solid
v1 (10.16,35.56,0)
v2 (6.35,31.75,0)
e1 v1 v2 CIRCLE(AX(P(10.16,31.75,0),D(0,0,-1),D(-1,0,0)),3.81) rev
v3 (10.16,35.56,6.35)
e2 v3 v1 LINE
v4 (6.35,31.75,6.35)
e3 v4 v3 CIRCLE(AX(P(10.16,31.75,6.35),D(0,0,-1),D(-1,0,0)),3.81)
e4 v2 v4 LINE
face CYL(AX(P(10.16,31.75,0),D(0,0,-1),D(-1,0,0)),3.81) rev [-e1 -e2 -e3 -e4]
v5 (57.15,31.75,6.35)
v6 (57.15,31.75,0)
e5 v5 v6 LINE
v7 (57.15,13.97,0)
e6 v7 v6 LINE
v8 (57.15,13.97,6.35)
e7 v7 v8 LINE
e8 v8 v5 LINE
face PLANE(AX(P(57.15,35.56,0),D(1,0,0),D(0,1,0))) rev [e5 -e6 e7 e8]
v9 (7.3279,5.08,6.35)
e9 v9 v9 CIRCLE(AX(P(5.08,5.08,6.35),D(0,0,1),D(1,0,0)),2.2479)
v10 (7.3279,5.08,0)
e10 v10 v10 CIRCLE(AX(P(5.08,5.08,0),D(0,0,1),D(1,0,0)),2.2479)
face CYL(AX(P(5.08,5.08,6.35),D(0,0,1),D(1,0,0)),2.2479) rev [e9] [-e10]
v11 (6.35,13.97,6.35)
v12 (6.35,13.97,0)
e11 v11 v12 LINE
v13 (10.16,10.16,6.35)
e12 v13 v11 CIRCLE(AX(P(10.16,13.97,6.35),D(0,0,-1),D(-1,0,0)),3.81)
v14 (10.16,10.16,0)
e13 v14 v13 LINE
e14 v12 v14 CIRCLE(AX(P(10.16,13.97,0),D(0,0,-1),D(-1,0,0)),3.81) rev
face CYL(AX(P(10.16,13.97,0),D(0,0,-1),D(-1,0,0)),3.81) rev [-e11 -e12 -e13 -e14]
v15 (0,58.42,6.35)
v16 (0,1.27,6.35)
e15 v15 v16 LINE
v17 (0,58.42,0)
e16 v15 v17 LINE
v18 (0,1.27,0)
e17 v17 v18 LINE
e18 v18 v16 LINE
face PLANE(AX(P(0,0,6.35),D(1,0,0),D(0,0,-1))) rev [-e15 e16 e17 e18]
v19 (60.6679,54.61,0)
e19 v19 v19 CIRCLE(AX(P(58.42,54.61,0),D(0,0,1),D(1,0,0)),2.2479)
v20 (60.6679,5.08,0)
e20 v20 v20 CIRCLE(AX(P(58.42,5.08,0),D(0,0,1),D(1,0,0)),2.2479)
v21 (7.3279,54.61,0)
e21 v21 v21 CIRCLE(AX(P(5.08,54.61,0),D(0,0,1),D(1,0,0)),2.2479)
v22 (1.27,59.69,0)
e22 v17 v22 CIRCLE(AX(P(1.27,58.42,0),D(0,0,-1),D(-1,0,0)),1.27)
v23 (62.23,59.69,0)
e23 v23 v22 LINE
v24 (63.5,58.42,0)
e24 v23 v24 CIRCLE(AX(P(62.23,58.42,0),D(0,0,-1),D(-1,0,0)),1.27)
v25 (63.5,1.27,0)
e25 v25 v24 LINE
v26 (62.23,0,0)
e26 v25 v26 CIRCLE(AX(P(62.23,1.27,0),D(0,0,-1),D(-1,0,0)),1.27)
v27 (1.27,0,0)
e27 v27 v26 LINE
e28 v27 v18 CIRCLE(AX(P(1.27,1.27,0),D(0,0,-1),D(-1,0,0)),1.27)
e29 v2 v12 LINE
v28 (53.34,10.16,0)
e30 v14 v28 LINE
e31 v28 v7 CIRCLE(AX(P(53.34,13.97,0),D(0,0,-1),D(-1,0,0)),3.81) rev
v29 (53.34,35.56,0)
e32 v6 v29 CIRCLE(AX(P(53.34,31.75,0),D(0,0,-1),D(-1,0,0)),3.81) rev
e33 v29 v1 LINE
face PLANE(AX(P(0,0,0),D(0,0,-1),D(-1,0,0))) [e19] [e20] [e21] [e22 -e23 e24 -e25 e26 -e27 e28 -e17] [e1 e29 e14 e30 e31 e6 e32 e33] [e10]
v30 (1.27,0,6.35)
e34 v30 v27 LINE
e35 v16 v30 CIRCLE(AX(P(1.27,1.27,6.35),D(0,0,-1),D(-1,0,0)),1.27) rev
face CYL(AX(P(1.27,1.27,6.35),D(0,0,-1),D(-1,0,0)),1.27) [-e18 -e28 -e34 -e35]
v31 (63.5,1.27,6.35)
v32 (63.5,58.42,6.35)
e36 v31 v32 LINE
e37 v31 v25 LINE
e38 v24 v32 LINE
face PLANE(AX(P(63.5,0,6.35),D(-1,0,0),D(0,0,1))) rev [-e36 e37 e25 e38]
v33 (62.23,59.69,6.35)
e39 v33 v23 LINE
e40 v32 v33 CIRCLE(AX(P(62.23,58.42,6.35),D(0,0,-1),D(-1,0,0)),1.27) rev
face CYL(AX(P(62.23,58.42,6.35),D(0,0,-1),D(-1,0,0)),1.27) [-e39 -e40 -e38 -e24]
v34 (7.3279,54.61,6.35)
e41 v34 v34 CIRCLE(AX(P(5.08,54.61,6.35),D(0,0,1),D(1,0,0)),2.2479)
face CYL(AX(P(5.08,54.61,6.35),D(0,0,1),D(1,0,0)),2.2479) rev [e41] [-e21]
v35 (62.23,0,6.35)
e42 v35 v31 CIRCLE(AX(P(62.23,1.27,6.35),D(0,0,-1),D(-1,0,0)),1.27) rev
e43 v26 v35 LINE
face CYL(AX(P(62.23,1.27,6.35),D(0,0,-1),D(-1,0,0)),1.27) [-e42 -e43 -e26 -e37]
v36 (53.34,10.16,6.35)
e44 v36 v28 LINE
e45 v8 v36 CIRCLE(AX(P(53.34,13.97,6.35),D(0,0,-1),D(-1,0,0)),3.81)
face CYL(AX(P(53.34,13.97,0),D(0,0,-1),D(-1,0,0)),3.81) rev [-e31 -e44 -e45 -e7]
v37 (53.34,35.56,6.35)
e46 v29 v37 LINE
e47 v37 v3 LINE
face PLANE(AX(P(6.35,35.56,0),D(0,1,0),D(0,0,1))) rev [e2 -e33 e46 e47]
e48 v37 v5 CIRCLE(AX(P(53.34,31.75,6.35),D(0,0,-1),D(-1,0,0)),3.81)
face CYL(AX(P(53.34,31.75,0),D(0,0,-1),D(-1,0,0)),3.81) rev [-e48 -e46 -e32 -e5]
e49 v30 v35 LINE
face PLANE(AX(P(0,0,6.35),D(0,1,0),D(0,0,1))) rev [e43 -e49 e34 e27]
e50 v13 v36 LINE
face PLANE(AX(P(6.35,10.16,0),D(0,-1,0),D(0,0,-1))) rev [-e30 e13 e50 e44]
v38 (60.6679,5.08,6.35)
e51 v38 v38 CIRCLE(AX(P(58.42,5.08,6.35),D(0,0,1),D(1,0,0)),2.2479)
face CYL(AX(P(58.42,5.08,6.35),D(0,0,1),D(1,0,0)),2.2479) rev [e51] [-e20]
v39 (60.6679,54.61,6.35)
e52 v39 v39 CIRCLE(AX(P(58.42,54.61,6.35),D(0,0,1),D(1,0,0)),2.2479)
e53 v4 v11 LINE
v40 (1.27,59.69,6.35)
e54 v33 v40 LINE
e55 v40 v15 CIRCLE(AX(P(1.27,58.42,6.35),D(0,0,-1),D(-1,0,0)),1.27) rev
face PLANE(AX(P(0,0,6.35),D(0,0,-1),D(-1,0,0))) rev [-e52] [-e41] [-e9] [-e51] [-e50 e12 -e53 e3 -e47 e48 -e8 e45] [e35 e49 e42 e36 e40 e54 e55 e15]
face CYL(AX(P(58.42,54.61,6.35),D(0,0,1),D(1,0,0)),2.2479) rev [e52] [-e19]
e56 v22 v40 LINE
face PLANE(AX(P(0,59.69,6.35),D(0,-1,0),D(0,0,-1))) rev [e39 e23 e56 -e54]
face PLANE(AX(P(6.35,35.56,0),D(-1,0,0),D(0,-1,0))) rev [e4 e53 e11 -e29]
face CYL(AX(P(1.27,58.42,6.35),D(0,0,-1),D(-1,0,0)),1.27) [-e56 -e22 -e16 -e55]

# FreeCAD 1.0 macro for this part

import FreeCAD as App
import Part
import Sketcher

V = App.Vector
Q = App.Units.Quantity


def edges_at(feature, points):
    """Names of the edges that pass closest to the given points."""
    edges = feature.Shape.Edges
    near = lambda p: min(range(len(edges)), key=lambda i: edges[i].distToShape(Part.Vertex(*p))[0])
    return sorted({f"Edge{near(p) + 1}" for p in points})

doc = App.newDocument("Part")
params = doc.addObject("Spreadsheet::Sheet", "Params")
for row, (alias, value) in enumerate([
    ("sketch1_width", "2.5 in"),
    ("sketch1_height", "2.35 in"),
    ("pad1_length", "0.25 in"),
    ("fillet_radius", "0.05 in"),
    ("sketch2_diameter", "0.177 in"),
    ("hole_diameter", "0.177 in"),
    ("sketch3_width", "2 in"),
    ("sketch3_height", "1 in"),
    ("fillet2_radius", "0.15 in"),
], start=1):
    params.set(f"A{row}", alias)
    params.set(f"B{row}", "=" + value)
    params.setAlias(f"B{row}", alias)

body = doc.addObject("PartDesign::Body", "Body")

sketch1 = body.newObject("Sketcher::SketchObject", "Sketch")
sketch1.AttachmentSupport = (doc.getObject("XY_Plane"), [""])
sketch1.MapMode = "FlatFace"
sketch1.addGeometry([
    Part.LineSegment(V(0, 60, 0), V(0, 0, 0)),
    Part.LineSegment(V(0, 0, 0), V(64, 0, 0)),
    Part.LineSegment(V(64, 0, 0), V(64, 60, 0)),
    Part.LineSegment(V(64, 60, 0), V(0, 60, 0)),
], False)
sketch1.addConstraint([
    Sketcher.Constraint("Coincident", 0, 2, 1, 1),
    Sketcher.Constraint("Coincident", 1, 2, 2, 1),
    Sketcher.Constraint("Coincident", 2, 2, 3, 1),
    Sketcher.Constraint("Coincident", 3, 2, 0, 1),
    Sketcher.Constraint("Vertical", 0),
    Sketcher.Constraint("Horizontal", 1),
    Sketcher.Constraint("Vertical", 2),
    Sketcher.Constraint("Horizontal", 3),
    Sketcher.Constraint("Coincident", 0, 2, -1, 1),
    Sketcher.Constraint("DistanceX", 1, 1, 1, 2, Q("2.5 in")),
    Sketcher.Constraint("DistanceY", 0, 2, 0, 1, Q("2.35 in")),
])
sketch1.setExpression("Constraints[9]", "Params.sketch1_width")
sketch1.setExpression("Constraints[10]", "Params.sketch1_height")
pad1 = body.newObject("PartDesign::Pad", "Pad")
pad1.Profile = sketch1
pad1.setExpression("Length", "Params.pad1_length")
doc.recompute()

fillet = body.newObject("PartDesign::Fillet", "Fillet")
fillet.Base = (pad1, edges_at(pad1, [
    (0, 59.69, 3.175),
    (63.5, 59.69, 3.175),
    (63.5, 0, 3.175),
    (0, 0, 3.175),
]))
fillet.setExpression("Radius", "Params.fillet_radius")

sketch2 = body.newObject("Sketcher::SketchObject", "Sketch001")
sketch2.AttachmentSupport = (doc.getObject("XY_Plane"), [""])
sketch2.MapMode = "FlatFace"
sketch2.AttachmentOffset = App.Placement(V(0, 0, 0.25 * 25.4), App.Rotation())
sketch2.addGeometry([
    Part.Circle(V(5.1, 54.6, 0), V(0, 0, 1), 2.2),
    Part.Circle(V(58.4, 54.6, 0), V(0, 0, 1), 2.2),
    Part.Circle(V(58.4, 5.1, 0), V(0, 0, 1), 2.2),
    Part.Circle(V(5.1, 5.1, 0), V(0, 0, 1), 2.2),
], False)
sketch2.addConstraint([
    Sketcher.Constraint("Equal", 0, 1),
    Sketcher.Constraint("Equal", 1, 2),
    Sketcher.Constraint("Equal", 2, 3),
    Sketcher.Constraint("Horizontal", 0, 3, 1, 3),
    Sketcher.Constraint("Horizontal", 2, 3, 3, 3),
    Sketcher.Constraint("Vertical", 1, 3, 2, 3),
    Sketcher.Constraint("Vertical", 0, 3, 3, 3),
    Sketcher.Constraint("Diameter", 0, Q("0.177 in")),
    Sketcher.Constraint("DistanceX", -1, 1, 0, 3, Q("0.2 in")),
    Sketcher.Constraint("DistanceX", -1, 1, 1, 3, Q("2.3 in")),
    Sketcher.Constraint("DistanceY", -1, 1, 2, 3, Q("0.2 in")),
    Sketcher.Constraint("DistanceY", -1, 1, 0, 3, Q("2.15 in")),
])
sketch2.setExpression("Constraints[7]", "Params.sketch2_diameter")
doc.recompute()
hole = body.newObject("PartDesign::Hole", "Hole")
hole.Profile = sketch2
hole.ThreadType = "None"
hole.setExpression("Diameter", "Params.hole_diameter")
hole.DepthType = "ThroughAll"

sketch3 = body.newObject("Sketcher::SketchObject", "Sketch002")
sketch3.AttachmentSupport = (doc.getObject("XY_Plane"), [""])
sketch3.MapMode = "FlatFace"
sketch3.AttachmentOffset = App.Placement(V(0, 0, 0.25 * 25.4), App.Rotation())
sketch3.addGeometry([
    Part.LineSegment(V(6, 36, 0), V(6, 10, 0)),
    Part.LineSegment(V(6, 10, 0), V(57, 10, 0)),
    Part.LineSegment(V(57, 10, 0), V(57, 36, 0)),
    Part.LineSegment(V(57, 36, 0), V(6, 36, 0)),
], False)
sketch3.addConstraint([
    Sketcher.Constraint("Coincident", 0, 2, 1, 1),
    Sketcher.Constraint("Coincident", 1, 2, 2, 1),
    Sketcher.Constraint("Coincident", 2, 2, 3, 1),
    Sketcher.Constraint("Coincident", 3, 2, 0, 1),
    Sketcher.Constraint("Vertical", 0),
    Sketcher.Constraint("Horizontal", 1),
    Sketcher.Constraint("Vertical", 2),
    Sketcher.Constraint("Horizontal", 3),
    Sketcher.Constraint("DistanceX", 1, 1, 1, 2, Q("2 in")),
    Sketcher.Constraint("DistanceY", 0, 2, 0, 1, Q("1 in")),
    Sketcher.Constraint("DistanceY", -1, 1, 0, 2, Q("0.4 in")),
    Sketcher.Constraint("DistanceX", -1, 1, 0, 2, Q("0.25 in")),
])
sketch3.setExpression("Constraints[8]", "Params.sketch3_width")
sketch3.setExpression("Constraints[9]", "Params.sketch3_height")
pocket1 = body.newObject("PartDesign::Pocket", "Pocket")
pocket1.Profile = sketch3
pocket1.Type = "ThroughAll"
doc.recompute()

fillet2 = body.newObject("PartDesign::Fillet", "Fillet001")
fillet2.Base = (pocket1, edges_at(pocket1, [
    (6.35, 10.16, 3.175),
    (6.35, 35.56, 3.175),
    (57.15, 35.56, 3.175),
    (57.15, 10.16, 3.175),
]))
fillet2.setExpression("Radius", "Params.fillet2_radius")

doc.recompute()
